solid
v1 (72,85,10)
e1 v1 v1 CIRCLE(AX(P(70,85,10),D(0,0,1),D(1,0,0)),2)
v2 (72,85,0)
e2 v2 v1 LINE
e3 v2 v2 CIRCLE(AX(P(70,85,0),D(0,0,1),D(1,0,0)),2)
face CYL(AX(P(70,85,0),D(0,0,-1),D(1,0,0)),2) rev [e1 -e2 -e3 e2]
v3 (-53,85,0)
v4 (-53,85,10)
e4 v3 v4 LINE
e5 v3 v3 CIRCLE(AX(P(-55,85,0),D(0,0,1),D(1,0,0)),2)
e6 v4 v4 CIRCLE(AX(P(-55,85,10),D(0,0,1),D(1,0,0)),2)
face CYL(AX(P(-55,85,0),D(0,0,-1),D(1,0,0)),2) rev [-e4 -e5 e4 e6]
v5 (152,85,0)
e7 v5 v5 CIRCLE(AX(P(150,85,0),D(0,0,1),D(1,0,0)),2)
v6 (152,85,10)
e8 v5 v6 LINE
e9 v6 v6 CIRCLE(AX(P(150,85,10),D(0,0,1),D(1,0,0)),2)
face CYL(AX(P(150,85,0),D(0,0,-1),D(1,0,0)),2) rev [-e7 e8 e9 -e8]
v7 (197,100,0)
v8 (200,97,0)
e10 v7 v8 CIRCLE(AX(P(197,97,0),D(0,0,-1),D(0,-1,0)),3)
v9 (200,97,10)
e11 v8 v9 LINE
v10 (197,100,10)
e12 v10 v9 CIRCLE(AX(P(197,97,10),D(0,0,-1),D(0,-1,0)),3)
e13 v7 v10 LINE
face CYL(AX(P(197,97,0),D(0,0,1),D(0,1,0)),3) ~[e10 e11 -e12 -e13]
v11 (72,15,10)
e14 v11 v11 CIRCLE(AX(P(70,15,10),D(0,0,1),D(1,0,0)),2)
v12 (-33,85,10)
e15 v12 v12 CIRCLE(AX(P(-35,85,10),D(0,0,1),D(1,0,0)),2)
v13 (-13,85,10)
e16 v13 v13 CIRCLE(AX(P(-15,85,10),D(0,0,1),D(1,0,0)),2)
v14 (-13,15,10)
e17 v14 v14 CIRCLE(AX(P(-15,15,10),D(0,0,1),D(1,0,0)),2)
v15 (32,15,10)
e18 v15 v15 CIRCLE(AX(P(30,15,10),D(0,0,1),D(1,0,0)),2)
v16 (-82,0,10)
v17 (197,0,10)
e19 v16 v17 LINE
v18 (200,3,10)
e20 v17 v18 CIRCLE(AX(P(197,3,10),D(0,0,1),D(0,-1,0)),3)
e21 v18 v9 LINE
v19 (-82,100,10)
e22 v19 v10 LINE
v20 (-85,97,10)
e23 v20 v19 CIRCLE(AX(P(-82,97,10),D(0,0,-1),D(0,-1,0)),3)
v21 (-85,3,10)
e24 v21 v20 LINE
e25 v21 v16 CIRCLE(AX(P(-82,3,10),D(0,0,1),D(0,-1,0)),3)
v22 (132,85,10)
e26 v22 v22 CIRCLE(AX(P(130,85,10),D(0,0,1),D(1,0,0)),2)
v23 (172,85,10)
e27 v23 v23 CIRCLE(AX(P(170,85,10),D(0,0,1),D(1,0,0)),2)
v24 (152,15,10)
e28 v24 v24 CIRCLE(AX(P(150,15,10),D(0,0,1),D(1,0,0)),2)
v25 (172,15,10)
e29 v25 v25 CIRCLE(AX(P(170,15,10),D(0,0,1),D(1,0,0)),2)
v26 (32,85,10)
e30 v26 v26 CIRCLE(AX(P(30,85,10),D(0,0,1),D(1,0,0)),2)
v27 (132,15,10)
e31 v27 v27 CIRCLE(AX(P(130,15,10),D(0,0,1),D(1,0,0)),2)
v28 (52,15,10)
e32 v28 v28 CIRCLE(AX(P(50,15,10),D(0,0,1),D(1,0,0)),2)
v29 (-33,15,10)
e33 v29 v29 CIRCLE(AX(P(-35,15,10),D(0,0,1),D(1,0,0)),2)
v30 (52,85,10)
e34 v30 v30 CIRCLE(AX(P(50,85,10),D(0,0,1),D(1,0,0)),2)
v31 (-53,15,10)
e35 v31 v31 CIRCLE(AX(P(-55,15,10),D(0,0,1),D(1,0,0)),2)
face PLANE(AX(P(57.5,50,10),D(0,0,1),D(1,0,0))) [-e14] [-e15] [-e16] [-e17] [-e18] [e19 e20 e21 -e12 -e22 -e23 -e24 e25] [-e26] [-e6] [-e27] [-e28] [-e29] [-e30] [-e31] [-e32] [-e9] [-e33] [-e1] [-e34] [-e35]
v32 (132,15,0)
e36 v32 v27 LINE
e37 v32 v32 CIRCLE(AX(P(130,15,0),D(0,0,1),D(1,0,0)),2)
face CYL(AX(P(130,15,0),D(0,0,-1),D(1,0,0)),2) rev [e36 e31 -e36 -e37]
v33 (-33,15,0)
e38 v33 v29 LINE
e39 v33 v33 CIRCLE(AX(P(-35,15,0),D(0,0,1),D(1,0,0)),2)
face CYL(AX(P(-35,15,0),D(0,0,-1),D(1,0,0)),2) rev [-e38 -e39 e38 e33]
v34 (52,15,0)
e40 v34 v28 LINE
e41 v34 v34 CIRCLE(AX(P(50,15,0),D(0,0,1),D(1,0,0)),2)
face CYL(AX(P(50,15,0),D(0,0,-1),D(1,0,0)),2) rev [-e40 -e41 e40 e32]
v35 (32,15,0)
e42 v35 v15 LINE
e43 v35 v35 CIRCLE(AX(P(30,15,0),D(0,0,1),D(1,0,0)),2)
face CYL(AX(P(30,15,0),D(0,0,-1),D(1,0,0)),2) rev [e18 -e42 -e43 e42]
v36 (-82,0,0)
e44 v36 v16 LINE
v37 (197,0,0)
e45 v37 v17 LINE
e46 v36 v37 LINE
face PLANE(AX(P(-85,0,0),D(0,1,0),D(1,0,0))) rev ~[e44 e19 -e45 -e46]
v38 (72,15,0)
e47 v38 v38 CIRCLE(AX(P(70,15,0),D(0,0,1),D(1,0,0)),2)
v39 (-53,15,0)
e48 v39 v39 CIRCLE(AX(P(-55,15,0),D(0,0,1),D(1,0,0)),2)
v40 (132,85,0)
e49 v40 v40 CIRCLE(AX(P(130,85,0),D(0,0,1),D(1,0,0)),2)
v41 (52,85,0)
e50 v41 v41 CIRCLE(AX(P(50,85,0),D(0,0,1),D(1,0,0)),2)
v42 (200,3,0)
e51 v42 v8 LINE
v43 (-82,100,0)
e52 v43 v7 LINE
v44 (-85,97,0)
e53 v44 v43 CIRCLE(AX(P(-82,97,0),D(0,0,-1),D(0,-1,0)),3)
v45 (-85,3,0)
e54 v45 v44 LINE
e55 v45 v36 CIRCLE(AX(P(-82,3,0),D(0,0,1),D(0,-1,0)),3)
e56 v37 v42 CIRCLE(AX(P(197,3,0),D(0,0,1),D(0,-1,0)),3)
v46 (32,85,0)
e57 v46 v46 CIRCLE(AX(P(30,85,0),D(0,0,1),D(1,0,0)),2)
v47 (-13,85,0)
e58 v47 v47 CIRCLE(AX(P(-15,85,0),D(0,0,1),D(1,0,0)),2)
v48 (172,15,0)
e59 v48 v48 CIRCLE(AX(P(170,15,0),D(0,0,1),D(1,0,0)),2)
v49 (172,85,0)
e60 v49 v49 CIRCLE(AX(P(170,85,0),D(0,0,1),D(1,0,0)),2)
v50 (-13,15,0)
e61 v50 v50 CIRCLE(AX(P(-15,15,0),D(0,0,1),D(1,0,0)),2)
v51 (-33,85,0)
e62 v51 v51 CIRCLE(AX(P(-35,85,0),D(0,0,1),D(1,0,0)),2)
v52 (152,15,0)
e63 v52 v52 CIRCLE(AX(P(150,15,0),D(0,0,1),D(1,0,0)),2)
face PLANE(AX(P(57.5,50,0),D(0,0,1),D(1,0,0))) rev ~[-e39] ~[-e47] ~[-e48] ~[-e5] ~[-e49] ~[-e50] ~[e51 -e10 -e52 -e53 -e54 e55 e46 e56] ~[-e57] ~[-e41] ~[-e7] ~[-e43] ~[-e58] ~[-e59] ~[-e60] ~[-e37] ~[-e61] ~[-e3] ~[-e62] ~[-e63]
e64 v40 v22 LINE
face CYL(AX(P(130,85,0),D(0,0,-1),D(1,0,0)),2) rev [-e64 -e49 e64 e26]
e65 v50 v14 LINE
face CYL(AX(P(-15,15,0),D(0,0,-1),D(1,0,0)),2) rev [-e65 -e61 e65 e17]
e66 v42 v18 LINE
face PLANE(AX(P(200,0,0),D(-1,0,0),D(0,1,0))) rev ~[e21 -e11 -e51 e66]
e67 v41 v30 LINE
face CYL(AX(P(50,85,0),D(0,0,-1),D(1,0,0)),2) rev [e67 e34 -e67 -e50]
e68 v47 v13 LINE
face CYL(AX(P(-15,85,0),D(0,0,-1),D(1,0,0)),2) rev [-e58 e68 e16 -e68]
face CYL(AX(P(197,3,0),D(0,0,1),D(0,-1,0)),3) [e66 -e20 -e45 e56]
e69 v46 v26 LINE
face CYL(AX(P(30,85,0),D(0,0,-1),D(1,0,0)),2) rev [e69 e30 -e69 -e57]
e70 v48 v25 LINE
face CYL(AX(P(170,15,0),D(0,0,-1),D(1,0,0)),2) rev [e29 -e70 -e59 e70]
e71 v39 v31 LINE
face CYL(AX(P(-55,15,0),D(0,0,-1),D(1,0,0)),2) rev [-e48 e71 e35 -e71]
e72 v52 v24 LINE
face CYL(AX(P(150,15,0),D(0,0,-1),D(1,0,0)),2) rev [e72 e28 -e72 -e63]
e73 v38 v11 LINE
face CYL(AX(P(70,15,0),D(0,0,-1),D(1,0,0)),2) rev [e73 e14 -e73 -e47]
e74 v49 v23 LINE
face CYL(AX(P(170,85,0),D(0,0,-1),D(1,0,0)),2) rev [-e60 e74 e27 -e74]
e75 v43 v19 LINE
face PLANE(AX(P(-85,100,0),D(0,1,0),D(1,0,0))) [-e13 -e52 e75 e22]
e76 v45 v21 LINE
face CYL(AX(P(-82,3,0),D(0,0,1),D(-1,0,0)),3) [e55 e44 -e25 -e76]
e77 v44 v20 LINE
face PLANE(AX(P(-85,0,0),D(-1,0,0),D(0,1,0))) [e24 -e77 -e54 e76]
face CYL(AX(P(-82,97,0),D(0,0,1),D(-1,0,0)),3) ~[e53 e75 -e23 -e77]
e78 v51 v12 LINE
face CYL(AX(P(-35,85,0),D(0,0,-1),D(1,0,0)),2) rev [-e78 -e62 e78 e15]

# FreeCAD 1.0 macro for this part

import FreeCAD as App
import Part
import Sketcher


def edges_at(feature, points):
    """Names of the edges that pass closest to the given points."""
    edges = feature.Shape.Edges
    near = lambda p: min(range(len(edges)), key=lambda i: edges[i].distToShape(Part.Vertex(*p))[0])
    return sorted({f"Edge{near(p) + 1}" for p in points})


def add_polygon(sketch, points):
    """Adds a closed chain of lines whose ends are joined by coincident constraints."""
    first, n = sketch.GeometryCount, len(points)
    for a, b in zip(points, points[1:] + points[:1]):
        sketch.addGeometry(Part.LineSegment(App.Vector(*a, 0), App.Vector(*b, 0)), False)
    for i in range(n):
        sketch.addConstraint(Sketcher.Constraint("Coincident", first + i, 2, first + (i + 1) % n, 1))

doc = App.newDocument("Part")
body = doc.addObject("PartDesign::Body", "Body")

# Sketch on XY plane
sketch1 = body.newObject("Sketcher::SketchObject", "Sketch")
sketch1.AttachmentSupport = (doc.getObject("XY_Plane"), [""])
sketch1.MapMode = "FlatFace"
add_polygon(sketch1, [(-85, 100), (-85, 0), (200, 0), (200, 100)])  # lines 0-3
sketch1.addGeometry(Part.Circle(App.Vector(-55, 15, 0), App.Vector(0, 0, 1), 2), False)  # 4
sketch1.addGeometry(Part.Circle(App.Vector(-35, 15, 0), App.Vector(0, 0, 1), 2), False)  # 5
sketch1.addGeometry(Part.Circle(App.Vector(-15, 15, 0), App.Vector(0, 0, 1), 2), False)  # 6
sketch1.addGeometry(Part.Circle(App.Vector(30, 15, 0), App.Vector(0, 0, 1), 2), False)  # 7
sketch1.addGeometry(Part.Circle(App.Vector(50, 15, 0), App.Vector(0, 0, 1), 2), False)  # 8
sketch1.addGeometry(Part.Circle(App.Vector(70, 15, 0), App.Vector(0, 0, 1), 2), False)  # 9
sketch1.addGeometry(Part.Circle(App.Vector(130, 15, 0), App.Vector(0, 0, 1), 2), False)  # 10
sketch1.addGeometry(Part.Circle(App.Vector(150, 15, 0), App.Vector(0, 0, 1), 2), False)  # 11
sketch1.addGeometry(Part.Circle(App.Vector(170, 15, 0), App.Vector(0, 0, 1), 2), False)  # 12
sketch1.addGeometry(Part.Circle(App.Vector(-55, 85, 0), App.Vector(0, 0, 1), 2), False)  # 13
sketch1.addGeometry(Part.Circle(App.Vector(-35, 85, 0), App.Vector(0, 0, 1), 2), False)  # 14
sketch1.addGeometry(Part.Circle(App.Vector(-15, 85, 0), App.Vector(0, 0, 1), 2), False)  # 15
sketch1.addGeometry(Part.Circle(App.Vector(30, 85, 0), App.Vector(0, 0, 1), 2), False)  # 16
sketch1.addGeometry(Part.Circle(App.Vector(50, 85, 0), App.Vector(0, 0, 1), 2), False)  # 17
sketch1.addGeometry(Part.Circle(App.Vector(70, 85, 0), App.Vector(0, 0, 1), 2), False)  # 18
sketch1.addGeometry(Part.Circle(App.Vector(130, 85, 0), App.Vector(0, 0, 1), 2), False)  # 19
sketch1.addGeometry(Part.Circle(App.Vector(150, 85, 0), App.Vector(0, 0, 1), 2), False)  # 20
sketch1.addGeometry(Part.Circle(App.Vector(170, 85, 0), App.Vector(0, 0, 1), 2), False)  # 21
sketch1.addConstraint(Sketcher.Constraint("Vertical", 0))
sketch1.addConstraint(Sketcher.Constraint("Horizontal", 1))
sketch1.addConstraint(Sketcher.Constraint("Vertical", 2))
sketch1.addConstraint(Sketcher.Constraint("Horizontal", 3))
sketch1.addConstraint(Sketcher.Constraint("Equal", 4, 5))
sketch1.addConstraint(Sketcher.Constraint("Equal", 5, 6))
sketch1.addConstraint(Sketcher.Constraint("Equal", 6, 7))
sketch1.addConstraint(Sketcher.Constraint("Equal", 7, 8))
sketch1.addConstraint(Sketcher.Constraint("Equal", 8, 9))
sketch1.addConstraint(Sketcher.Constraint("Equal", 9, 10))
sketch1.addConstraint(Sketcher.Constraint("Equal", 10, 11))
sketch1.addConstraint(Sketcher.Constraint("Equal", 11, 12))
sketch1.addConstraint(Sketcher.Constraint("Equal", 12, 13))
sketch1.addConstraint(Sketcher.Constraint("Equal", 13, 14))
sketch1.addConstraint(Sketcher.Constraint("Equal", 14, 15))
sketch1.addConstraint(Sketcher.Constraint("Equal", 15, 16))
sketch1.addConstraint(Sketcher.Constraint("Equal", 16, 17))
sketch1.addConstraint(Sketcher.Constraint("Equal", 17, 18))
sketch1.addConstraint(Sketcher.Constraint("Equal", 18, 19))
sketch1.addConstraint(Sketcher.Constraint("Equal", 19, 20))
sketch1.addConstraint(Sketcher.Constraint("Equal", 20, 21))
sketch1.addConstraint(Sketcher.Constraint("PointOnObject", 0, 2, -1))
sketch1.addConstraint(Sketcher.Constraint("Horizontal", 4, 3, 5, 3))
sketch1.addConstraint(Sketcher.Constraint("Horizontal", 5, 3, 6, 3))
sketch1.addConstraint(Sketcher.Constraint("Horizontal", 6, 3, 7, 3))
sketch1.addConstraint(Sketcher.Constraint("Horizontal", 7, 3, 8, 3))
sketch1.addConstraint(Sketcher.Constraint("Horizontal", 8, 3, 9, 3))
sketch1.addConstraint(Sketcher.Constraint("Horizontal", 9, 3, 10, 3))
sketch1.addConstraint(Sketcher.Constraint("Horizontal", 10, 3, 11, 3))
sketch1.addConstraint(Sketcher.Constraint("Horizontal", 11, 3, 12, 3))
sketch1.addConstraint(Sketcher.Constraint("Horizontal", 13, 3, 14, 3))
sketch1.addConstraint(Sketcher.Constraint("Horizontal", 14, 3, 15, 3))
sketch1.addConstraint(Sketcher.Constraint("Horizontal", 15, 3, 16, 3))
sketch1.addConstraint(Sketcher.Constraint("Horizontal", 16, 3, 17, 3))
sketch1.addConstraint(Sketcher.Constraint("Horizontal", 17, 3, 18, 3))
sketch1.addConstraint(Sketcher.Constraint("Horizontal", 18, 3, 19, 3))
sketch1.addConstraint(Sketcher.Constraint("Horizontal", 19, 3, 20, 3))
sketch1.addConstraint(Sketcher.Constraint("Horizontal", 20, 3, 21, 3))
sketch1.addConstraint(Sketcher.Constraint("Vertical", 4, 3, 13, 3))
sketch1.addConstraint(Sketcher.Constraint("Vertical", 5, 3, 14, 3))
sketch1.addConstraint(Sketcher.Constraint("Vertical", 6, 3, 15, 3))
sketch1.addConstraint(Sketcher.Constraint("Vertical", 7, 3, 16, 3))
sketch1.addConstraint(Sketcher.Constraint("Vertical", 8, 3, 17, 3))
sketch1.addConstraint(Sketcher.Constraint("Vertical", 9, 3, 18, 3))
sketch1.addConstraint(Sketcher.Constraint("Vertical", 10, 3, 19, 3))
sketch1.addConstraint(Sketcher.Constraint("Vertical", 11, 3, 20, 3))
sketch1.addConstraint(Sketcher.Constraint("Vertical", 12, 3, 21, 3))
sketch1.addConstraint(Sketcher.Constraint("Diameter", 4, 4.0))
sketch1.addConstraint(Sketcher.Constraint("DistanceX", 1, 1, 1, 2, 285.0))
sketch1.addConstraint(Sketcher.Constraint("DistanceY", 0, 2, 0, 1, 100.0))
sketch1.addConstraint(Sketcher.Constraint("DistanceX", 4, 3, -1, 1, 55.0))
sketch1.addConstraint(Sketcher.Constraint("DistanceY", -1, 1, 4, 3, 15.0))
sketch1.addConstraint(Sketcher.Constraint("DistanceX", 5, 3, -1, 1, 35.0))
sketch1.addConstraint(Sketcher.Constraint("DistanceX", 6, 3, -1, 1, 15.0))
sketch1.addConstraint(Sketcher.Constraint("DistanceX", -1, 1, 7, 3, 30.0))
sketch1.addConstraint(Sketcher.Constraint("DistanceX", -1, 1, 8, 3, 50.0))
sketch1.addConstraint(Sketcher.Constraint("DistanceX", -1, 1, 9, 3, 70.0))
sketch1.addConstraint(Sketcher.Constraint("DistanceX", -1, 1, 10, 3, 130.0))
sketch1.addConstraint(Sketcher.Constraint("DistanceX", -1, 1, 11, 3, 150.0))
sketch1.addConstraint(Sketcher.Constraint("DistanceX", -1, 1, 12, 3, 170.0))
sketch1.addConstraint(Sketcher.Constraint("DistanceY", -1, 1, 13, 3, 85.0))
sketch1.addConstraint(Sketcher.Constraint("DistanceX", 0, 2, -1, 1, 85.0))
pad1 = body.newObject("PartDesign::Pad", "Pad")
pad1.Profile = sketch1
pad1.Length = 10
doc.recompute()

fillet = body.newObject("PartDesign::Fillet", "Fillet")
fillet.Base = (pad1, edges_at(pad1, [
    (-85, 0, 5),
    (200, 0, 5),
    (200, 100, 5),
    (-85, 100, 5),
]))
fillet.Radius = 3

doc.recompute()
